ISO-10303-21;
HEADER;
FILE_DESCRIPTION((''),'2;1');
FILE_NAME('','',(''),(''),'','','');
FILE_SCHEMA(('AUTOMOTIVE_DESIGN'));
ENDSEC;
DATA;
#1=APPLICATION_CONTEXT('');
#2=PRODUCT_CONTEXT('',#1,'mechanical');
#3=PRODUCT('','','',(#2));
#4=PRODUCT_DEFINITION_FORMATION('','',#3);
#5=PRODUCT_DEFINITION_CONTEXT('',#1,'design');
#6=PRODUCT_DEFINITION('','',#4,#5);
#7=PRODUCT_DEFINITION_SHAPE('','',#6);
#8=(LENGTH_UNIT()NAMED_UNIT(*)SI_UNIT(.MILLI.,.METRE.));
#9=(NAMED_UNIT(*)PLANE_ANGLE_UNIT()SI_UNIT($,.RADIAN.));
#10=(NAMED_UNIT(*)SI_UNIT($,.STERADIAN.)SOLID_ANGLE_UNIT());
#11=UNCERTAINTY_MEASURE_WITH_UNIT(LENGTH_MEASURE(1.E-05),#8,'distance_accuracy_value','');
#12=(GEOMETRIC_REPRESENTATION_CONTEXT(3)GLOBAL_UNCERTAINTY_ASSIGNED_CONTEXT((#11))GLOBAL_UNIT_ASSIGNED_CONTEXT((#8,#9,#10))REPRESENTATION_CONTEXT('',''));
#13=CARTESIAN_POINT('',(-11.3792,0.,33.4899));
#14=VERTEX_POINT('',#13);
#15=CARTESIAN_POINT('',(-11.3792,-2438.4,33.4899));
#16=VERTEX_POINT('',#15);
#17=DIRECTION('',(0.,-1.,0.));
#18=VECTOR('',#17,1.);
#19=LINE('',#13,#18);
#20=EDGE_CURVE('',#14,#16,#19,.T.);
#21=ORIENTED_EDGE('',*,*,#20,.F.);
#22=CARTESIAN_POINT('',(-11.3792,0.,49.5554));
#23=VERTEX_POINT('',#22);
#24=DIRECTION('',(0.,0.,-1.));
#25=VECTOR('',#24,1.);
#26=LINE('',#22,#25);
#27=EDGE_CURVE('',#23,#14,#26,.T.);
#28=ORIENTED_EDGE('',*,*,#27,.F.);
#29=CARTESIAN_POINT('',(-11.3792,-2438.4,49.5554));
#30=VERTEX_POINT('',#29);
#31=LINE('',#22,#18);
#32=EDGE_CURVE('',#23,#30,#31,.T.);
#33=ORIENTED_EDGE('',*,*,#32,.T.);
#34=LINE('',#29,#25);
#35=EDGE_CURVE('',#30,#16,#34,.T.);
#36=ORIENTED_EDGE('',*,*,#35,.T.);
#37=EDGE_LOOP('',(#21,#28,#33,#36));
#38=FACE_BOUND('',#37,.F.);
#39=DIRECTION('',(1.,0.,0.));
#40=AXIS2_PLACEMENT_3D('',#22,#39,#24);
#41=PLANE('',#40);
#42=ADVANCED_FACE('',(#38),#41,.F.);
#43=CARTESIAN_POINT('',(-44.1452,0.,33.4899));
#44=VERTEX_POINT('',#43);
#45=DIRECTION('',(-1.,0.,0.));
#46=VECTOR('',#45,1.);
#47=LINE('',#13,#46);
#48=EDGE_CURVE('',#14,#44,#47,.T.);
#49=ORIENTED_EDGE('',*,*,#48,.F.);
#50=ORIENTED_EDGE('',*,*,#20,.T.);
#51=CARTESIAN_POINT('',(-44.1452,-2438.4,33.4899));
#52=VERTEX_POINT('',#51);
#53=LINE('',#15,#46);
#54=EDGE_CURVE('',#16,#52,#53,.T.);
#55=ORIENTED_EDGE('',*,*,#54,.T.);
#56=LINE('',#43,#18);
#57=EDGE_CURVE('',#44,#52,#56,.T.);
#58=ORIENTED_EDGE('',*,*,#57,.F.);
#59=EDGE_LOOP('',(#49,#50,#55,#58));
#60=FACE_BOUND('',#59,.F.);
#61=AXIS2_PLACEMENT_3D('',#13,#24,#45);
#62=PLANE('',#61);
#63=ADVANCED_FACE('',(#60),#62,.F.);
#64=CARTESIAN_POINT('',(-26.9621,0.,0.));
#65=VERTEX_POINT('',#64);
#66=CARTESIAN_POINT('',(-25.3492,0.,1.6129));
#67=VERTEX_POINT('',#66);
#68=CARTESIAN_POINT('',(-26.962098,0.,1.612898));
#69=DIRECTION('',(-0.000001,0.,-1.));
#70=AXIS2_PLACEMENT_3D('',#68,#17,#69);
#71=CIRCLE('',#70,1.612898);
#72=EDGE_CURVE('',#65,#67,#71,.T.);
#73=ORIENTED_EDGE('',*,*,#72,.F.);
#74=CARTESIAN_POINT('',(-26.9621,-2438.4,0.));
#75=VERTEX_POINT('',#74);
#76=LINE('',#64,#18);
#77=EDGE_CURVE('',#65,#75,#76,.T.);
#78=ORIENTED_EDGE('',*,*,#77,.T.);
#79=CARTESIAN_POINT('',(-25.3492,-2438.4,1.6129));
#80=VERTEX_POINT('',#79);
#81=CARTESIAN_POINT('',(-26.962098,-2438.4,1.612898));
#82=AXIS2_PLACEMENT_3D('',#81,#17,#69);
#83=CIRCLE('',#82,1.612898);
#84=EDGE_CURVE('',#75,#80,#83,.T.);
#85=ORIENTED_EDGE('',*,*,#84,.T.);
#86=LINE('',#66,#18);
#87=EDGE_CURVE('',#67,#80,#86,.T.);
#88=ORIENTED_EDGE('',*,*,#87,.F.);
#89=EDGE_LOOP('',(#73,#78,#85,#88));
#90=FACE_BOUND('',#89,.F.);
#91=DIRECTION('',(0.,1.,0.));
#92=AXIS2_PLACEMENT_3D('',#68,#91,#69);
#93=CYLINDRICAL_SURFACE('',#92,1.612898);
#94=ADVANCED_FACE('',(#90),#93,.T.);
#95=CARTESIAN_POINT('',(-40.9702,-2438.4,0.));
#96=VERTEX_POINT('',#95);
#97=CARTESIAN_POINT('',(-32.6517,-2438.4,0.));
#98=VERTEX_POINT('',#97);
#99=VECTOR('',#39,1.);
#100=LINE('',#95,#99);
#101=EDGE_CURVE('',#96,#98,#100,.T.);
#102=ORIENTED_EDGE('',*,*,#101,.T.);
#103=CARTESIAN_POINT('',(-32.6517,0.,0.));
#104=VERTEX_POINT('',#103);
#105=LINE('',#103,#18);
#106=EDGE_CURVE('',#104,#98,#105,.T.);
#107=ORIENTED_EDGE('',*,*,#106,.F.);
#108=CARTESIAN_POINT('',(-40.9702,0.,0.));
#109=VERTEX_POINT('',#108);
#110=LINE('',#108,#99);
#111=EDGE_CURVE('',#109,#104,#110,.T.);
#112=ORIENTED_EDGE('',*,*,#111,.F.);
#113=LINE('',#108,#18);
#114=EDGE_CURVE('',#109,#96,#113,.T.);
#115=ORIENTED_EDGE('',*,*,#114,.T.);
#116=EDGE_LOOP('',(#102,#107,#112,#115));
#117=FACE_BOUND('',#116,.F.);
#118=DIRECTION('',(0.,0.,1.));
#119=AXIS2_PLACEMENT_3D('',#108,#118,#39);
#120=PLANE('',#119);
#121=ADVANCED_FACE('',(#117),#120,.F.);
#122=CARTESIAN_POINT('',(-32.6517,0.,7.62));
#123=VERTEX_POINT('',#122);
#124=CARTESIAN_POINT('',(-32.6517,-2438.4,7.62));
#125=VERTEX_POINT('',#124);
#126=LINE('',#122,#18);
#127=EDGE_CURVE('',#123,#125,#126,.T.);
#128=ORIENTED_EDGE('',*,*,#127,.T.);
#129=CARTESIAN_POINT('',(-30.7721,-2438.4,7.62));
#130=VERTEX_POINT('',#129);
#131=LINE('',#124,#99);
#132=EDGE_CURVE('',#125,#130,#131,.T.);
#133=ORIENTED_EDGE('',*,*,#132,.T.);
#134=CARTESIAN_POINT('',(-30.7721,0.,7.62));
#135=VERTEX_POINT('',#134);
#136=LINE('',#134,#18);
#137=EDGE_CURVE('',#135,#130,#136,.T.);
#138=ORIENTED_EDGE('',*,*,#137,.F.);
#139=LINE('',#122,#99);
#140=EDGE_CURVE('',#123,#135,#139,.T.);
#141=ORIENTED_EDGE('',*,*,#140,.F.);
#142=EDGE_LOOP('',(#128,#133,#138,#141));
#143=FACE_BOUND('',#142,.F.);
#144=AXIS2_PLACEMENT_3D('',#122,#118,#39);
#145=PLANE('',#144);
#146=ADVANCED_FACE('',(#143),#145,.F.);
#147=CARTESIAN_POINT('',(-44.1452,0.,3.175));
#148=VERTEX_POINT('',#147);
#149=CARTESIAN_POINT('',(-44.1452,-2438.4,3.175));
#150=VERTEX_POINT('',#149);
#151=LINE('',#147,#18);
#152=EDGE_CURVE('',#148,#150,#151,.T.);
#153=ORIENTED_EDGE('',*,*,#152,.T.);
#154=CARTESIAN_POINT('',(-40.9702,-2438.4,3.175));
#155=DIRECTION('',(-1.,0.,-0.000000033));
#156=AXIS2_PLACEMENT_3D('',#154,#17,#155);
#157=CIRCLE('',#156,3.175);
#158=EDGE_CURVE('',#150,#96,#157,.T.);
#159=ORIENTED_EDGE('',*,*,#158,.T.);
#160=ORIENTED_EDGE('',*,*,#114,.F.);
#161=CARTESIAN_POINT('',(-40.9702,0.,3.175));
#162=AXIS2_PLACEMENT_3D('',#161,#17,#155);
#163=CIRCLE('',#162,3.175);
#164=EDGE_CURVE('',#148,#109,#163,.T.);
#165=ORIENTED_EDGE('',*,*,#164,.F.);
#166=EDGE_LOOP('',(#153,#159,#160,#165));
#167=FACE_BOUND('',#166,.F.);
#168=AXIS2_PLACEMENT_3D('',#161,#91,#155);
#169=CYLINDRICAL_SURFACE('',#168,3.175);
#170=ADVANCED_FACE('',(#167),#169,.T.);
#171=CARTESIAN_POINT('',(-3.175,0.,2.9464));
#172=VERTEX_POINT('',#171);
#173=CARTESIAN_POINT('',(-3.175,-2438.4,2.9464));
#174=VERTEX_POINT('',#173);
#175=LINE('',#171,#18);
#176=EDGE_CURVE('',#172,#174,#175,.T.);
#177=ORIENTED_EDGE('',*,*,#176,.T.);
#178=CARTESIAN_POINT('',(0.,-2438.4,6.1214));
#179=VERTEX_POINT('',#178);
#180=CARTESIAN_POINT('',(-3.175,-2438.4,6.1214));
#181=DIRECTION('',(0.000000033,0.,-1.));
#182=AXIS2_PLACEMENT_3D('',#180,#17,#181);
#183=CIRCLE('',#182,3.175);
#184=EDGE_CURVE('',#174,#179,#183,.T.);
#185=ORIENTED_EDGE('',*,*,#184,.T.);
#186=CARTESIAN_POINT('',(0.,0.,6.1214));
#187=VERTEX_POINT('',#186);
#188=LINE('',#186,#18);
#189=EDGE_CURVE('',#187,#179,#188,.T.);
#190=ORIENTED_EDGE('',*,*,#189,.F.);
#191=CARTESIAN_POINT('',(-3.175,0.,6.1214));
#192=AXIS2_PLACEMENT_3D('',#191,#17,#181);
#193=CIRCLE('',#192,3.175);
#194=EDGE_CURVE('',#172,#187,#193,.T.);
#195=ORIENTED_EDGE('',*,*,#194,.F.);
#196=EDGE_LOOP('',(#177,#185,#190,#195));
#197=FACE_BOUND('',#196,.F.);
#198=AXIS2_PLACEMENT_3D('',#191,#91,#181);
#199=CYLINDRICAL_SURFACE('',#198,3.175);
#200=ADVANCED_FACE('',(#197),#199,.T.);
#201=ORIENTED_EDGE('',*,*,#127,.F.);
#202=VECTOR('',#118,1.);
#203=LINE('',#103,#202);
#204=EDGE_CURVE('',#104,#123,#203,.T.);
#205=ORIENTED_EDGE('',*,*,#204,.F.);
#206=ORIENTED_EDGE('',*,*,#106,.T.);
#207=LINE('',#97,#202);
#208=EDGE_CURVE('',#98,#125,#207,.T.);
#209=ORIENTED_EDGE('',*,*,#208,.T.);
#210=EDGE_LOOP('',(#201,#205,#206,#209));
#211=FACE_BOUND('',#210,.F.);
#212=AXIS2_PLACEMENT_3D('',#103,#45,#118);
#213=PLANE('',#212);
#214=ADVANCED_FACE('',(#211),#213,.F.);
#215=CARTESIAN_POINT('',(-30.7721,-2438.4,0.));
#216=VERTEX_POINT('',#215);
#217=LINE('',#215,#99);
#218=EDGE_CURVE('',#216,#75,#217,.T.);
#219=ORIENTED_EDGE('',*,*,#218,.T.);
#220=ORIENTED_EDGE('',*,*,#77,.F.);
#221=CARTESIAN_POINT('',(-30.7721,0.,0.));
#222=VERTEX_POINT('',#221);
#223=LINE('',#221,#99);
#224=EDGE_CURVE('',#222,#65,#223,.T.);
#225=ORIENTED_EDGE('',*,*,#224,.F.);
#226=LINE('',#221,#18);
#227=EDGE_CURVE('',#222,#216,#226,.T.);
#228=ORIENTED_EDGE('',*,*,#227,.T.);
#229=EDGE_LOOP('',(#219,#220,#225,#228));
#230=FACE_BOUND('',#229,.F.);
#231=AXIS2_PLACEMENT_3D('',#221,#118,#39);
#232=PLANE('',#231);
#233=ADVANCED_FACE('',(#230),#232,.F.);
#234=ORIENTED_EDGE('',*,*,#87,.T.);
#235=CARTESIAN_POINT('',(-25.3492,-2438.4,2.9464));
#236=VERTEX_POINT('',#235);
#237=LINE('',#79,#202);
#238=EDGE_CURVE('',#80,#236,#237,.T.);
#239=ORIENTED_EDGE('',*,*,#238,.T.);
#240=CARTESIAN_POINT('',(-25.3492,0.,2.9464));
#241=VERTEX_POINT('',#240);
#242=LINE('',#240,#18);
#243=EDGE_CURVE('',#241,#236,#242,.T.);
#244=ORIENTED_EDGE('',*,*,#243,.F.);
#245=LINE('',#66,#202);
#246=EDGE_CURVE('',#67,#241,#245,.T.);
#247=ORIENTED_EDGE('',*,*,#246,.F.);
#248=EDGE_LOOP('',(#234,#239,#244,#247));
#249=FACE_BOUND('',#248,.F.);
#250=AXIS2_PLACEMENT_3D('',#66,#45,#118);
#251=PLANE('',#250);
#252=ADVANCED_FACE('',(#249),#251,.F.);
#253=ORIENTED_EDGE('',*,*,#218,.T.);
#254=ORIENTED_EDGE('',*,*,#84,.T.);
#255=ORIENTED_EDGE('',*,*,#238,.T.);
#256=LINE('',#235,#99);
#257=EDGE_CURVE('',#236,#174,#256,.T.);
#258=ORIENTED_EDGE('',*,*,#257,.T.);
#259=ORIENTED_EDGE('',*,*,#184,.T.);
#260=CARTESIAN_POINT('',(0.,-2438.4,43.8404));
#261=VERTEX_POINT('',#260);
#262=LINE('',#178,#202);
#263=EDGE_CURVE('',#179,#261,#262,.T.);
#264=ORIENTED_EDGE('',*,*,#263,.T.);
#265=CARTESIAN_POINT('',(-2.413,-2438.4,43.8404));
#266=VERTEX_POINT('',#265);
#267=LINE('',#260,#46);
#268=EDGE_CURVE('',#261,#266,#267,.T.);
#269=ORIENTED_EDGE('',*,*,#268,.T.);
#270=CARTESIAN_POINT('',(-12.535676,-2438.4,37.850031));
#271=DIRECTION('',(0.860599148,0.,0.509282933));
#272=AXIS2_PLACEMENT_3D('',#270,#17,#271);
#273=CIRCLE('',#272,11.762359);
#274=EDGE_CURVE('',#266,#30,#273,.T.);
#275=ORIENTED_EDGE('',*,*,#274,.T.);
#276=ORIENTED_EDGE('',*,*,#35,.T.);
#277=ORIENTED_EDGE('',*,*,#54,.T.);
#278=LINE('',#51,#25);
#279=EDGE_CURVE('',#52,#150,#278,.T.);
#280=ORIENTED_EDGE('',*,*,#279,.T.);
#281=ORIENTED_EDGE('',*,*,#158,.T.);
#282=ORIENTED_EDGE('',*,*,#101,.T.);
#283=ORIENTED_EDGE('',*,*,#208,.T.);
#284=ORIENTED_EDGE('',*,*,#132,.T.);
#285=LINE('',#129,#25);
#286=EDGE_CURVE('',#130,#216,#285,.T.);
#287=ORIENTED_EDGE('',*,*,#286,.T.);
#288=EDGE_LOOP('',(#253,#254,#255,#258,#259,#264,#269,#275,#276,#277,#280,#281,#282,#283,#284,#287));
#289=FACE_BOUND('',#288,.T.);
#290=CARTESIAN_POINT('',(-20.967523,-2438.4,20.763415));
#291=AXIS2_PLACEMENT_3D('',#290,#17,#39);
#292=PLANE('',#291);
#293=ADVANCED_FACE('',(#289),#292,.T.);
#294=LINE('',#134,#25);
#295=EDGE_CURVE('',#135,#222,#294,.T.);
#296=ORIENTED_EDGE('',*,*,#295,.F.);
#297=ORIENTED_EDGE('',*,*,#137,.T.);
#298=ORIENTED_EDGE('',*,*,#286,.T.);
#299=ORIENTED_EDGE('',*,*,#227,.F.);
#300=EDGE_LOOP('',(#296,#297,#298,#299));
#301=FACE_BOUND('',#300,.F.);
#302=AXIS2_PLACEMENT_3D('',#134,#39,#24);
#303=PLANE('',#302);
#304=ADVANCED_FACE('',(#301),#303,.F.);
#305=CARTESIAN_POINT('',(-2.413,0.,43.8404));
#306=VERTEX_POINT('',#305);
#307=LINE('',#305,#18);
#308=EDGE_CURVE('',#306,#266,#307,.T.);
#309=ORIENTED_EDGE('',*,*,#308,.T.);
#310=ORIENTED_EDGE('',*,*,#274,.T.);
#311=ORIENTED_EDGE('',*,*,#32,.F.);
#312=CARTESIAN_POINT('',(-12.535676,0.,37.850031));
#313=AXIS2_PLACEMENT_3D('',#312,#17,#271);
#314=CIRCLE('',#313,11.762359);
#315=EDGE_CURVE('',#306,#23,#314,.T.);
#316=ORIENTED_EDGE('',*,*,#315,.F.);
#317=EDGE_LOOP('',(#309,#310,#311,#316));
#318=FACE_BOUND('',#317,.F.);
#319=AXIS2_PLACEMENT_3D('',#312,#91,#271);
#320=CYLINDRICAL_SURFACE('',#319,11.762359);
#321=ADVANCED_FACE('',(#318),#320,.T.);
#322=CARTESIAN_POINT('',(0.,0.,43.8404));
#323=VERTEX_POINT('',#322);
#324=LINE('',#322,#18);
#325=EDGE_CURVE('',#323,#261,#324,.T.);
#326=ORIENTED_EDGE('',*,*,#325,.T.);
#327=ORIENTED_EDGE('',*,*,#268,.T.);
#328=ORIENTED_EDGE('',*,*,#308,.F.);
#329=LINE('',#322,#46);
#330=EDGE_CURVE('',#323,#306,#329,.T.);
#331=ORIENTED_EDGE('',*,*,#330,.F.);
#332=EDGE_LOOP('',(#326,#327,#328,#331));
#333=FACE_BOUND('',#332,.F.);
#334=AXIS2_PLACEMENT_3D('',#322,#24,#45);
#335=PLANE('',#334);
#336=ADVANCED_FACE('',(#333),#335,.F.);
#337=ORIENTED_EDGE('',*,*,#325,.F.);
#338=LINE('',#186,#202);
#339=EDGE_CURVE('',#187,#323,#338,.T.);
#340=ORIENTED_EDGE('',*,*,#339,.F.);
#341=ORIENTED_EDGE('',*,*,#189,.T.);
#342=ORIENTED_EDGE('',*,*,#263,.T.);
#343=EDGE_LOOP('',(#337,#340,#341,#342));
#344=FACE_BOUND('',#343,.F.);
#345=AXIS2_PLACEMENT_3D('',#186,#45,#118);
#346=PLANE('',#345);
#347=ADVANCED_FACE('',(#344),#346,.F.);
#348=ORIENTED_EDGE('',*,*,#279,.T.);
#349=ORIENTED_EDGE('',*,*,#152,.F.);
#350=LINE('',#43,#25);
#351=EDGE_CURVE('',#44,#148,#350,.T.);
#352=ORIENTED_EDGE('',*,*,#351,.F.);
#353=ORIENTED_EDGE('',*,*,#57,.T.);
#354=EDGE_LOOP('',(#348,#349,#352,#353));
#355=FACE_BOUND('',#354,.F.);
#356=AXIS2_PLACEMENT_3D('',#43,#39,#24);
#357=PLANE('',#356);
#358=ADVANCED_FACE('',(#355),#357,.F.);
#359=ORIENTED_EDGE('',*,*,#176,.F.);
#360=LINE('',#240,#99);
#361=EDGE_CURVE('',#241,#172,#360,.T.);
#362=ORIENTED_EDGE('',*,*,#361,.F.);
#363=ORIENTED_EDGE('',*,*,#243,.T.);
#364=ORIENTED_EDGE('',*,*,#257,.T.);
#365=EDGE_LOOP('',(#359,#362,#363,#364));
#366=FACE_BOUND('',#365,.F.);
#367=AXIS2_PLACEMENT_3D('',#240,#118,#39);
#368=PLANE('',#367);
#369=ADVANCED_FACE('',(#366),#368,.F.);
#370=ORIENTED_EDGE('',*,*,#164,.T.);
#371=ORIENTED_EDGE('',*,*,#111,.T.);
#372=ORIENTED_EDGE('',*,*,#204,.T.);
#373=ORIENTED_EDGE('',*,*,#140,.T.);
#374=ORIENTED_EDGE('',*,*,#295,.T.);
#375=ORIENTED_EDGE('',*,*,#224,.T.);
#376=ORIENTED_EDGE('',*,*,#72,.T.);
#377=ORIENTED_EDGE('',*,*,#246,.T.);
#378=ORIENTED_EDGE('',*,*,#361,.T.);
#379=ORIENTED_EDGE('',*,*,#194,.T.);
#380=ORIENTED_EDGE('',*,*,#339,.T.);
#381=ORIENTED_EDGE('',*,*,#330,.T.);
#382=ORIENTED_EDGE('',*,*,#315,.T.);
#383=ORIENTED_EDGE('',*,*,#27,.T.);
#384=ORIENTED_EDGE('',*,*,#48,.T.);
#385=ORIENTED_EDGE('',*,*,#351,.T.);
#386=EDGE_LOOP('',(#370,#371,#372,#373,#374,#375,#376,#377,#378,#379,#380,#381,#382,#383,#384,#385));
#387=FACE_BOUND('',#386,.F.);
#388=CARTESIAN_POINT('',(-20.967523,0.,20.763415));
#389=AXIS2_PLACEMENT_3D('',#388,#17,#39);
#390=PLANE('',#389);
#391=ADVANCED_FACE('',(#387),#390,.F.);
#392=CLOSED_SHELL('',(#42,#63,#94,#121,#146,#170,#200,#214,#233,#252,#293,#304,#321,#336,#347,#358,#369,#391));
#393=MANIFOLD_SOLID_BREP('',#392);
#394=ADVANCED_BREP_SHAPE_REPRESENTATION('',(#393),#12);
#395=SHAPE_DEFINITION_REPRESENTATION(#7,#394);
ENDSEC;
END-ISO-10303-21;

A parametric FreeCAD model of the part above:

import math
import FreeCAD as App
import Part
import Sketcher

V = App.Vector
Q = App.Units.Quantity

doc = App.newDocument("Part")
body = doc.addObject("PartDesign::Body", "Body")

# Sketch on XZ plane
sketch1 = doc.addObject("Sketcher::SketchObject", "Sketch")
body.addObject(sketch1)
sketch1.AttachmentSupport = (doc.XZ_Plane, [""])
sketch1.MapMode = "FlatFace"
sketch1.addGeometry(Part.ArcOfCircle(Part.Circle(V(-3.2, 6.1, 0), V(0, 0, 1), 3.2), math.radians(-90), math.radians(0)), False)
sketch1.addGeometry(Part.LineSegment(V(0, 6.1, 0), V(0, 43.8, 0)), False)
sketch1.addGeometry(Part.LineSegment(V(0, 43.8, 0), V(-2.4, 43.8, 0)), False)
sketch1.addGeometry(Part.ArcOfCircle(Part.Circle(V(-12.5, 37.9, 0), V(0, 0, 1), 11.8), math.radians(31), math.radians(84)), False)
sketch1.addGeometry(Part.LineSegment(V(-11.4, 49.6, 0), V(-11.4, 33.5, 0)), False)
sketch1.addGeometry(Part.LineSegment(V(-11.4, 33.5, 0), V(-44.1, 33.5, 0)), False)
sketch1.addGeometry(Part.LineSegment(V(-44.1, 33.5, 0), V(-44.1, 3.2, 0)), False)
sketch1.addGeometry(Part.ArcOfCircle(Part.Circle(V(-41, 3.2, 0), V(0, 0, 1), 3.2), math.radians(-180), math.radians(-90)), False)
sketch1.addGeometry(Part.LineSegment(V(-41, 0, 0), V(-32.7, 0, 0)), False)
sketch1.addGeometry(Part.LineSegment(V(-32.7, 0, 0), V(-32.7, 7.6, 0)), False)
sketch1.addGeometry(Part.LineSegment(V(-32.7, 7.6, 0), V(-30.8, 7.6, 0)), False)
sketch1.addGeometry(Part.LineSegment(V(-30.8, 7.6, 0), V(-30.8, 0, 0)), False)
sketch1.addGeometry(Part.LineSegment(V(-30.8, 0, 0), V(-27, 0, 0)), False)
sketch1.addGeometry(Part.ArcOfCircle(Part.Circle(V(-27, 1.6, 0), V(0, 0, 1), 1.6), math.radians(-90), math.radians(0)), False)
sketch1.addGeometry(Part.LineSegment(V(-25.3, 1.6, 0), V(-25.3, 2.9, 0)), False)
sketch1.addGeometry(Part.LineSegment(V(-25.3, 2.9, 0), V(-3.2, 2.9, 0)), False)
sketch1.addConstraint(Sketcher.Constraint("Tangent", 0, 2, 1, 1))
sketch1.addConstraint(Sketcher.Constraint("Coincident", 1, 2, 2, 1))
sketch1.addConstraint(Sketcher.Constraint("Coincident", 2, 2, 3, 1))
sketch1.addConstraint(Sketcher.Constraint("Coincident", 3, 2, 4, 1))
sketch1.addConstraint(Sketcher.Constraint("Coincident", 4, 2, 5, 1))
sketch1.addConstraint(Sketcher.Constraint("Coincident", 5, 2, 6, 1))
sketch1.addConstraint(Sketcher.Constraint("Tangent", 6, 2, 7, 1))
sketch1.addConstraint(Sketcher.Constraint("Tangent", 7, 2, 8, 1))
sketch1.addConstraint(Sketcher.Constraint("Coincident", 8, 2, 9, 1))
sketch1.addConstraint(Sketcher.Constraint("Coincident", 9, 2, 10, 1))
sketch1.addConstraint(Sketcher.Constraint("Coincident", 10, 2, 11, 1))
sketch1.addConstraint(Sketcher.Constraint("Coincident", 11, 2, 12, 1))
sketch1.addConstraint(Sketcher.Constraint("Tangent", 12, 2, 13, 1))
sketch1.addConstraint(Sketcher.Constraint("Tangent", 13, 2, 14, 1))
sketch1.addConstraint(Sketcher.Constraint("Coincident", 14, 2, 15, 1))
sketch1.addConstraint(Sketcher.Constraint("Tangent", 15, 2, 0, 1))
sketch1.addConstraint(Sketcher.Constraint("Vertical", 1))
sketch1.addConstraint(Sketcher.Constraint("Horizontal", 2))
sketch1.addConstraint(Sketcher.Constraint("Vertical", 4))
sketch1.addConstraint(Sketcher.Constraint("Horizontal", 5))
sketch1.addConstraint(Sketcher.Constraint("Vertical", 6))
sketch1.addConstraint(Sketcher.Constraint("Horizontal", 8))
sketch1.addConstraint(Sketcher.Constraint("Vertical", 9))
sketch1.addConstraint(Sketcher.Constraint("Horizontal", 10))
sketch1.addConstraint(Sketcher.Constraint("Vertical", 11))
sketch1.addConstraint(Sketcher.Constraint("Horizontal", 12))
sketch1.addConstraint(Sketcher.Constraint("Vertical", 14))
sketch1.addConstraint(Sketcher.Constraint("Horizontal", 15))
sketch1.addConstraint(Sketcher.Constraint("Equal", 0, 7))
sketch1.addConstraint(Sketcher.Constraint("PointOnObject", 0, 2, -2))
sketch1.addConstraint(Sketcher.Constraint("PointOnObject", 7, 2, -1))
sketch1.addConstraint(Sketcher.Constraint("PointOnObject", 11, 2, -1))
sketch1.addConstraint(Sketcher.Constraint("DistanceY", 9, 1, 9, 2, Q("0.3 in")))
sketch1.addConstraint(Sketcher.Constraint("Radius", 0, Q("0.125 in")))
sketch1.addConstraint(Sketcher.Constraint("DistanceX", 5, 2, 5, 1, Q("1.29 in")))
sketch1.addConstraint(Sketcher.Constraint("DistanceX", 12, 1, 12, 2, Q("0.15 in")))
sketch1.addConstraint(Sketcher.Constraint("Radius", 13, Q("0.0634999 in")))
sketch1.addConstraint(Sketcher.Constraint("DistanceX", 2, 2, 2, 1, Q("0.095 in")))
sketch1.addConstraint(Sketcher.Constraint("DistanceX", 10, 1, 10, 2, Q("0.074 in")))
sketch1.addConstraint(Sketcher.Constraint("DistanceX", 15, 1, 15, 2, Q("0.873 in")))
sketch1.addConstraint(Sketcher.Constraint("DistanceY", 1, 1, 1, 2, Q("1.485 in")))
sketch1.addConstraint(Sketcher.Constraint("DistanceY", 0, 3, 3, 2, Q("1.71 in")))
sketch1.addConstraint(Sketcher.Constraint("DistanceX", 8, 1, 8, 2, Q("0.3275 in")))
sketch1.addConstraint(Sketcher.Constraint("DistanceY", 4, 2, 4, 1, Q("0.6325 in")))
sketch1.addConstraint(Sketcher.Constraint("DistanceY", 6, 2, 6, 1, Q("1.1935 in")))
sketch1.addConstraint(Sketcher.Constraint("Radius", 3, Q("11.762359 mm")))
pad1 = doc.addObject("PartDesign::Pad", "Pad")
body.addObject(pad1)
pad1.Profile = sketch1
pad1.Length = Q("96 in")

doc.recompute()
